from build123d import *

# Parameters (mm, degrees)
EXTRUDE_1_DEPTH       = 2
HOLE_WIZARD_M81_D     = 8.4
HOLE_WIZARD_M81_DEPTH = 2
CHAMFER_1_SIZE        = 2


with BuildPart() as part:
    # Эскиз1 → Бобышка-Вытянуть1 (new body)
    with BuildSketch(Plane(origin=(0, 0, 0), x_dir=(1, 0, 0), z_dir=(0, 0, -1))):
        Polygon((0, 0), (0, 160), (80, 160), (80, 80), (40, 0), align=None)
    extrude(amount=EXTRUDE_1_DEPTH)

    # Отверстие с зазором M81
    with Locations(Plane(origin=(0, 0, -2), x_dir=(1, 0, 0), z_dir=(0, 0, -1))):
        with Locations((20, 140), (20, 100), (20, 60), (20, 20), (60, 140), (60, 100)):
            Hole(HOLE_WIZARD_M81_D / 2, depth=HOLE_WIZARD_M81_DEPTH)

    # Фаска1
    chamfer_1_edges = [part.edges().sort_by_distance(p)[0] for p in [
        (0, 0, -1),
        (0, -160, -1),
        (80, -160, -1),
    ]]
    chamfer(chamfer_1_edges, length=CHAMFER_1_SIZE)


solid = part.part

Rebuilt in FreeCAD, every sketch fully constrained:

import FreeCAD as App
import Part
import Sketcher

V = App.Vector


def edges_at(feature, points):
    """Names of the edges that pass closest to the given points."""
    edges = feature.Shape.Edges
    near = lambda p: min(range(len(edges)), key=lambda i: edges[i].distToShape(Part.Vertex(*p))[0])
    return sorted({f"Edge{near(p) + 1}" for p in points})

doc = App.newDocument("Part")
body = doc.addObject("PartDesign::Body", "Body")

# Sketch on XY plane
sketch1 = doc.addObject("Sketcher::SketchObject", "Sketch")
body.addObject(sketch1)
sketch1.AttachmentSupport = (doc.XY_Plane, [""])
sketch1.MapMode = "FlatFace"
sketch1.addGeometry([
    Part.LineSegment(V(0, -160, 0), V(0, 0, 0)),  # 0
    Part.LineSegment(V(0, 0, 0), V(40, 0, 0)),  # 1
    Part.LineSegment(V(40, 0, 0), V(80, -80, 0)),  # 2
    Part.LineSegment(V(80, -80, 0), V(80, -160, 0)),  # 3
    Part.LineSegment(V(80, -160, 0), V(0, -160, 0)),  # 4
], False)
sketch1.addConstraint([
    Sketcher.Constraint("Coincident", 0, 2, 1, 1),
    Sketcher.Constraint("Coincident", 1, 2, 2, 1),
    Sketcher.Constraint("Coincident", 2, 2, 3, 1),
    Sketcher.Constraint("Coincident", 3, 2, 4, 1),
    Sketcher.Constraint("Coincident", 4, 2, 0, 1),
    Sketcher.Constraint("Vertical", 0),
    Sketcher.Constraint("Horizontal", 1),
    Sketcher.Constraint("Vertical", 3),
    Sketcher.Constraint("Horizontal", 4),
    Sketcher.Constraint("Coincident", 0, 2, -1, 1),
    Sketcher.Constraint("Equal", 4, 3),
    Sketcher.Constraint("DistanceX", 1, 1, 1, 2, 40.0),
    Sketcher.Constraint("DistanceX", 4, 2, 4, 1, 80.0),
    Sketcher.Constraint("DistanceY", 0, 1, 0, 2, 160.0),
])
pad1 = doc.addObject("PartDesign::Pad", "Pad")
body.addObject(pad1)
pad1.Profile = sketch1
pad1.Length = 2
pad1.Reversed = True

# Sketch on XY plane
sketch2 = doc.addObject("Sketcher::SketchObject", "Sketch001")
body.addObject(sketch2)
sketch2.AttachmentSupport = (doc.XY_Plane, [""])
sketch2.MapMode = "FlatFace"
sketch2.AttachmentOffset = App.Placement(V(0, 0, -2), App.Rotation())
sketch2.addGeometry([
    Part.Circle(V(20, -140, 0), V(0, 0, 1), 4.2),  # 0
    Part.Circle(V(20, -100, 0), V(0, 0, 1), 4.2),  # 1
    Part.Circle(V(20, -60, 0), V(0, 0, 1), 4.2),  # 2
    Part.Circle(V(20, -20, 0), V(0, 0, 1), 4.2),  # 3
    Part.Circle(V(60, -140, 0), V(0, 0, 1), 4.2),  # 4
    Part.Circle(V(60, -100, 0), V(0, 0, 1), 4.2),  # 5
], False)
sketch2.addConstraint([
    Sketcher.Constraint("Equal", 0, 1),
    Sketcher.Constraint("Equal", 1, 2),
    Sketcher.Constraint("Equal", 2, 3),
    Sketcher.Constraint("Equal", 3, 4),
    Sketcher.Constraint("Equal", 4, 5),
    Sketcher.Constraint("Horizontal", 0, 3, 4, 3),
    Sketcher.Constraint("Horizontal", 1, 3, 5, 3),
    Sketcher.Constraint("Vertical", 0, 3, 1, 3),
    Sketcher.Constraint("Vertical", 1, 3, 2, 3),
    Sketcher.Constraint("Vertical", 2, 3, 3, 3),
    Sketcher.Constraint("Vertical", 4, 3, 5, 3),
    Sketcher.Constraint("Diameter", 0, 8.4),
    Sketcher.Constraint("DistanceX", -1, 1, 0, 3, 20.0),
    Sketcher.Constraint("DistanceY", 0, 3, -1, 1, 140.0),
    Sketcher.Constraint("DistanceY", 1, 3, -1, 1, 100.0),
    Sketcher.Constraint("DistanceY", 2, 3, -1, 1, 60.0),
    Sketcher.Constraint("DistanceY", 3, 3, -1, 1, 20.0),
    Sketcher.Constraint("DistanceX", -1, 1, 4, 3, 60.0),
])
doc.recompute()
hole = doc.addObject("PartDesign::Hole", "Hole")
body.addObject(hole)
hole.Profile = sketch2
hole.ThreadType = "None"
hole.Diameter = 8.4
hole.DepthType = "Dimension"
hole.Depth = 2
hole.DrillPoint = "Flat"
hole.Reversed = True
doc.recompute()

chamfer = doc.addObject("PartDesign::Chamfer", "Chamfer")
body.addObject(chamfer)
chamfer.Base = (hole, edges_at(hole, [(0, 0, -1), (0, -160, -1), (80, -160, -1)]))
chamfer.Size = 2

doc.recompute()
